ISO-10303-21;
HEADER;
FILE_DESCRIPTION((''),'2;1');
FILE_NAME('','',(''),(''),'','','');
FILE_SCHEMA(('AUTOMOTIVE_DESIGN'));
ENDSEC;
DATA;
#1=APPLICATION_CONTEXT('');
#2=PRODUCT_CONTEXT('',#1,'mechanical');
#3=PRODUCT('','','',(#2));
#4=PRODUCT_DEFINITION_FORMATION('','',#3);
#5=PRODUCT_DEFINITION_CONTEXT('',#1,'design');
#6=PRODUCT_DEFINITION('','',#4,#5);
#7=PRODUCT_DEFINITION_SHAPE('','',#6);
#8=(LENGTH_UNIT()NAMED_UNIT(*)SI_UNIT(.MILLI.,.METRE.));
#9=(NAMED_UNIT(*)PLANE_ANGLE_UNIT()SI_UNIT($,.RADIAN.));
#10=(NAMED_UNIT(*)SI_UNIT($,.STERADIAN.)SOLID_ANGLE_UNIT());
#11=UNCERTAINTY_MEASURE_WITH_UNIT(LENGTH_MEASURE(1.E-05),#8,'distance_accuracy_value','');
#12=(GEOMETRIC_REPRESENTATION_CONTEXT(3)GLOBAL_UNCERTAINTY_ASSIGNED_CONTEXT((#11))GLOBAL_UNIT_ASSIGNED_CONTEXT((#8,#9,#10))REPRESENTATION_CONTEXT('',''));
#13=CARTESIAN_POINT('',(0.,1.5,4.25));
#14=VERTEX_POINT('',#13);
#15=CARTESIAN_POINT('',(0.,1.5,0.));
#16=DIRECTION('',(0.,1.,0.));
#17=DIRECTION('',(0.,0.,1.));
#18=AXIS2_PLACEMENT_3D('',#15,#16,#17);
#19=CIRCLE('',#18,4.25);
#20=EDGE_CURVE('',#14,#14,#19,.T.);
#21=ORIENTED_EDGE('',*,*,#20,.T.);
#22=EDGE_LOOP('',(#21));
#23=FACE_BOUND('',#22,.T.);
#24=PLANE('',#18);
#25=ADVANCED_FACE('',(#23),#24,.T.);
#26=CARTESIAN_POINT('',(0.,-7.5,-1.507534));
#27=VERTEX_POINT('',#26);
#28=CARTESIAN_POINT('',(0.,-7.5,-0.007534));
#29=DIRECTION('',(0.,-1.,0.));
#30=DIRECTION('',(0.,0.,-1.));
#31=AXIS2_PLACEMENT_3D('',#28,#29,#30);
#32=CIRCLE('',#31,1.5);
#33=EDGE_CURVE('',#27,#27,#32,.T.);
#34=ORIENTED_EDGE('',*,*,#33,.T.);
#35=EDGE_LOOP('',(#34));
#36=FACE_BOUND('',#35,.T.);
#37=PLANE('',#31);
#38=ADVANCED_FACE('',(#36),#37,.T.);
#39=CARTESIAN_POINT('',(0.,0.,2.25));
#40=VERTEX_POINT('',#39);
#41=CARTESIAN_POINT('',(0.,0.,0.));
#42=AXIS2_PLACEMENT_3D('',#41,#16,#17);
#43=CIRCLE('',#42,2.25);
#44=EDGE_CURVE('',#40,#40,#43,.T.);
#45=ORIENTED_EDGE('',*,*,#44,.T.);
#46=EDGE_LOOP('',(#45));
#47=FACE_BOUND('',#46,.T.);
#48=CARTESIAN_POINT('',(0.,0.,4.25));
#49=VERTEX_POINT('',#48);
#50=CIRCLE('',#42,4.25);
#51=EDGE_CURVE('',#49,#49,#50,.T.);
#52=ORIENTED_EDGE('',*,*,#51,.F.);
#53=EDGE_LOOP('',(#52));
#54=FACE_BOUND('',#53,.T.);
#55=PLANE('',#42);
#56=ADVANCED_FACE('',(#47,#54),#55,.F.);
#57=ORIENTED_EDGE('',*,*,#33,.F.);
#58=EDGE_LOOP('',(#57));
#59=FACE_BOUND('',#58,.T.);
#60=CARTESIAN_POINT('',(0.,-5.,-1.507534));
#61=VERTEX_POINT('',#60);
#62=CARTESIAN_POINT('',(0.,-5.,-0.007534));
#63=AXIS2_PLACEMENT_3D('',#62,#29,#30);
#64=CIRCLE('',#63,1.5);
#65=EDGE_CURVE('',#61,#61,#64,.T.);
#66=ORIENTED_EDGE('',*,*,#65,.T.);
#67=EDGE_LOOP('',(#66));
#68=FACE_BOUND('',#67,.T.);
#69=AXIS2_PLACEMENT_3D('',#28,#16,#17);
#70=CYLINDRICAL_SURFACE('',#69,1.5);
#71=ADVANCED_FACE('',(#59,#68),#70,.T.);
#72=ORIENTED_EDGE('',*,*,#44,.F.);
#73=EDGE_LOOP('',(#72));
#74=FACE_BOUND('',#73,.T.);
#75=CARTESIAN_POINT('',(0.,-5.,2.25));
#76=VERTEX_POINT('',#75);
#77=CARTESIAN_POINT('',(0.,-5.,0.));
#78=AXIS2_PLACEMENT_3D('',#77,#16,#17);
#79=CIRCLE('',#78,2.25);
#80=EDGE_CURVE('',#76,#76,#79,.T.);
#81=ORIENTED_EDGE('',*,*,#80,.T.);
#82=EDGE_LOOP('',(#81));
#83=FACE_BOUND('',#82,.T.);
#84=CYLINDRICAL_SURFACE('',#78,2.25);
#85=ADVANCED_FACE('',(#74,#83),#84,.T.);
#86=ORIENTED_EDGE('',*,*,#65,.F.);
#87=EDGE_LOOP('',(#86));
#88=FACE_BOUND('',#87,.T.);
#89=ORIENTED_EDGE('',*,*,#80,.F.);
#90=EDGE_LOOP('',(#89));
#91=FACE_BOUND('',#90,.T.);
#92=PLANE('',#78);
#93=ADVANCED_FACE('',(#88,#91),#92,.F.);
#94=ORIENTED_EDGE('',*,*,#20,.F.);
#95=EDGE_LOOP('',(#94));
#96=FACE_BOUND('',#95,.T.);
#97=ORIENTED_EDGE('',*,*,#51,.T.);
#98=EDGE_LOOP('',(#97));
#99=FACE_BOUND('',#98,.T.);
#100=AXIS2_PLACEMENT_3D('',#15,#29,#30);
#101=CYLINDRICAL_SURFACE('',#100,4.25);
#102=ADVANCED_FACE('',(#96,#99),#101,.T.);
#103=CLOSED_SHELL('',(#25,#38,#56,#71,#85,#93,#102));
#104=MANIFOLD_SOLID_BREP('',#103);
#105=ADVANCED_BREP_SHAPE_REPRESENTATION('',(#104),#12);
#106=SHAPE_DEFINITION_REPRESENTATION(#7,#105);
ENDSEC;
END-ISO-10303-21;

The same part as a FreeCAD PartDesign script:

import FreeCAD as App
import Part
import Sketcher
from FreeCAD import Vector

doc = App.newDocument("Part")
body = doc.addObject("PartDesign::Body", "Body")

sketch1 = doc.addObject("Sketcher::SketchObject", "Sketch")
body.addObject(sketch1)
sketch1.AttachmentSupport = (doc.XZ_Plane, [""])
sketch1.MapMode = "FlatFace"
sketch1.addGeometry(Part.Circle(Vector(0, 0, 0), Vector(0, 0, 1), 4.2), False)
sketch1.addConstraint(Sketcher.Constraint("Coincident", 0, 3, -1, 1))
sketch1.addConstraint(Sketcher.Constraint("Diameter", 0, 8.5))
pad1 = doc.addObject("PartDesign::Pad", "Pad")
body.addObject(pad1)
pad1.Profile = sketch1
pad1.Length = 1.5
pad1.Reversed = True

sketch2 = doc.addObject("Sketcher::SketchObject", "Sketch001")
body.addObject(sketch2)
sketch2.AttachmentSupport = (doc.XZ_Plane, [""])
sketch2.MapMode = "FlatFace"
sketch2.addGeometry(Part.Circle(Vector(0, 0, 0), Vector(0, 0, 1), 2.2), False)
sketch2.addConstraint(Sketcher.Constraint("Coincident", 0, 3, -1, 1))
sketch2.addConstraint(Sketcher.Constraint("Diameter", 0, 4.5))
pad2 = doc.addObject("PartDesign::Pad", "Pad001")
body.addObject(pad2)
pad2.Profile = sketch2
pad2.Length = 5

sketch3 = doc.addObject("Sketcher::SketchObject", "Sketch002")
body.addObject(sketch3)
sketch3.AttachmentSupport = (doc.XZ_Plane, [""])
sketch3.MapMode = "FlatFace"
sketch3.AttachmentOffset = App.Placement(Vector(0, 0, 5), App.Rotation())
sketch3.addGeometry(Part.Circle(Vector(0, 0, 0), Vector(0, 0, 1), 1.5), False)
sketch3.addConstraint(Sketcher.Constraint("PointOnObject", 0, 3, -2))
sketch3.addConstraint(Sketcher.Constraint("Diameter", 0, 3.0))
sketch3.addConstraint(Sketcher.Constraint("DistanceY", 0, 3, -1, 1, 0.007534))
pad3 = doc.addObject("PartDesign::Pad", "Pad002")
body.addObject(pad3)
pad3.Profile = sketch3
pad3.Length = 2.5

doc.recompute()
